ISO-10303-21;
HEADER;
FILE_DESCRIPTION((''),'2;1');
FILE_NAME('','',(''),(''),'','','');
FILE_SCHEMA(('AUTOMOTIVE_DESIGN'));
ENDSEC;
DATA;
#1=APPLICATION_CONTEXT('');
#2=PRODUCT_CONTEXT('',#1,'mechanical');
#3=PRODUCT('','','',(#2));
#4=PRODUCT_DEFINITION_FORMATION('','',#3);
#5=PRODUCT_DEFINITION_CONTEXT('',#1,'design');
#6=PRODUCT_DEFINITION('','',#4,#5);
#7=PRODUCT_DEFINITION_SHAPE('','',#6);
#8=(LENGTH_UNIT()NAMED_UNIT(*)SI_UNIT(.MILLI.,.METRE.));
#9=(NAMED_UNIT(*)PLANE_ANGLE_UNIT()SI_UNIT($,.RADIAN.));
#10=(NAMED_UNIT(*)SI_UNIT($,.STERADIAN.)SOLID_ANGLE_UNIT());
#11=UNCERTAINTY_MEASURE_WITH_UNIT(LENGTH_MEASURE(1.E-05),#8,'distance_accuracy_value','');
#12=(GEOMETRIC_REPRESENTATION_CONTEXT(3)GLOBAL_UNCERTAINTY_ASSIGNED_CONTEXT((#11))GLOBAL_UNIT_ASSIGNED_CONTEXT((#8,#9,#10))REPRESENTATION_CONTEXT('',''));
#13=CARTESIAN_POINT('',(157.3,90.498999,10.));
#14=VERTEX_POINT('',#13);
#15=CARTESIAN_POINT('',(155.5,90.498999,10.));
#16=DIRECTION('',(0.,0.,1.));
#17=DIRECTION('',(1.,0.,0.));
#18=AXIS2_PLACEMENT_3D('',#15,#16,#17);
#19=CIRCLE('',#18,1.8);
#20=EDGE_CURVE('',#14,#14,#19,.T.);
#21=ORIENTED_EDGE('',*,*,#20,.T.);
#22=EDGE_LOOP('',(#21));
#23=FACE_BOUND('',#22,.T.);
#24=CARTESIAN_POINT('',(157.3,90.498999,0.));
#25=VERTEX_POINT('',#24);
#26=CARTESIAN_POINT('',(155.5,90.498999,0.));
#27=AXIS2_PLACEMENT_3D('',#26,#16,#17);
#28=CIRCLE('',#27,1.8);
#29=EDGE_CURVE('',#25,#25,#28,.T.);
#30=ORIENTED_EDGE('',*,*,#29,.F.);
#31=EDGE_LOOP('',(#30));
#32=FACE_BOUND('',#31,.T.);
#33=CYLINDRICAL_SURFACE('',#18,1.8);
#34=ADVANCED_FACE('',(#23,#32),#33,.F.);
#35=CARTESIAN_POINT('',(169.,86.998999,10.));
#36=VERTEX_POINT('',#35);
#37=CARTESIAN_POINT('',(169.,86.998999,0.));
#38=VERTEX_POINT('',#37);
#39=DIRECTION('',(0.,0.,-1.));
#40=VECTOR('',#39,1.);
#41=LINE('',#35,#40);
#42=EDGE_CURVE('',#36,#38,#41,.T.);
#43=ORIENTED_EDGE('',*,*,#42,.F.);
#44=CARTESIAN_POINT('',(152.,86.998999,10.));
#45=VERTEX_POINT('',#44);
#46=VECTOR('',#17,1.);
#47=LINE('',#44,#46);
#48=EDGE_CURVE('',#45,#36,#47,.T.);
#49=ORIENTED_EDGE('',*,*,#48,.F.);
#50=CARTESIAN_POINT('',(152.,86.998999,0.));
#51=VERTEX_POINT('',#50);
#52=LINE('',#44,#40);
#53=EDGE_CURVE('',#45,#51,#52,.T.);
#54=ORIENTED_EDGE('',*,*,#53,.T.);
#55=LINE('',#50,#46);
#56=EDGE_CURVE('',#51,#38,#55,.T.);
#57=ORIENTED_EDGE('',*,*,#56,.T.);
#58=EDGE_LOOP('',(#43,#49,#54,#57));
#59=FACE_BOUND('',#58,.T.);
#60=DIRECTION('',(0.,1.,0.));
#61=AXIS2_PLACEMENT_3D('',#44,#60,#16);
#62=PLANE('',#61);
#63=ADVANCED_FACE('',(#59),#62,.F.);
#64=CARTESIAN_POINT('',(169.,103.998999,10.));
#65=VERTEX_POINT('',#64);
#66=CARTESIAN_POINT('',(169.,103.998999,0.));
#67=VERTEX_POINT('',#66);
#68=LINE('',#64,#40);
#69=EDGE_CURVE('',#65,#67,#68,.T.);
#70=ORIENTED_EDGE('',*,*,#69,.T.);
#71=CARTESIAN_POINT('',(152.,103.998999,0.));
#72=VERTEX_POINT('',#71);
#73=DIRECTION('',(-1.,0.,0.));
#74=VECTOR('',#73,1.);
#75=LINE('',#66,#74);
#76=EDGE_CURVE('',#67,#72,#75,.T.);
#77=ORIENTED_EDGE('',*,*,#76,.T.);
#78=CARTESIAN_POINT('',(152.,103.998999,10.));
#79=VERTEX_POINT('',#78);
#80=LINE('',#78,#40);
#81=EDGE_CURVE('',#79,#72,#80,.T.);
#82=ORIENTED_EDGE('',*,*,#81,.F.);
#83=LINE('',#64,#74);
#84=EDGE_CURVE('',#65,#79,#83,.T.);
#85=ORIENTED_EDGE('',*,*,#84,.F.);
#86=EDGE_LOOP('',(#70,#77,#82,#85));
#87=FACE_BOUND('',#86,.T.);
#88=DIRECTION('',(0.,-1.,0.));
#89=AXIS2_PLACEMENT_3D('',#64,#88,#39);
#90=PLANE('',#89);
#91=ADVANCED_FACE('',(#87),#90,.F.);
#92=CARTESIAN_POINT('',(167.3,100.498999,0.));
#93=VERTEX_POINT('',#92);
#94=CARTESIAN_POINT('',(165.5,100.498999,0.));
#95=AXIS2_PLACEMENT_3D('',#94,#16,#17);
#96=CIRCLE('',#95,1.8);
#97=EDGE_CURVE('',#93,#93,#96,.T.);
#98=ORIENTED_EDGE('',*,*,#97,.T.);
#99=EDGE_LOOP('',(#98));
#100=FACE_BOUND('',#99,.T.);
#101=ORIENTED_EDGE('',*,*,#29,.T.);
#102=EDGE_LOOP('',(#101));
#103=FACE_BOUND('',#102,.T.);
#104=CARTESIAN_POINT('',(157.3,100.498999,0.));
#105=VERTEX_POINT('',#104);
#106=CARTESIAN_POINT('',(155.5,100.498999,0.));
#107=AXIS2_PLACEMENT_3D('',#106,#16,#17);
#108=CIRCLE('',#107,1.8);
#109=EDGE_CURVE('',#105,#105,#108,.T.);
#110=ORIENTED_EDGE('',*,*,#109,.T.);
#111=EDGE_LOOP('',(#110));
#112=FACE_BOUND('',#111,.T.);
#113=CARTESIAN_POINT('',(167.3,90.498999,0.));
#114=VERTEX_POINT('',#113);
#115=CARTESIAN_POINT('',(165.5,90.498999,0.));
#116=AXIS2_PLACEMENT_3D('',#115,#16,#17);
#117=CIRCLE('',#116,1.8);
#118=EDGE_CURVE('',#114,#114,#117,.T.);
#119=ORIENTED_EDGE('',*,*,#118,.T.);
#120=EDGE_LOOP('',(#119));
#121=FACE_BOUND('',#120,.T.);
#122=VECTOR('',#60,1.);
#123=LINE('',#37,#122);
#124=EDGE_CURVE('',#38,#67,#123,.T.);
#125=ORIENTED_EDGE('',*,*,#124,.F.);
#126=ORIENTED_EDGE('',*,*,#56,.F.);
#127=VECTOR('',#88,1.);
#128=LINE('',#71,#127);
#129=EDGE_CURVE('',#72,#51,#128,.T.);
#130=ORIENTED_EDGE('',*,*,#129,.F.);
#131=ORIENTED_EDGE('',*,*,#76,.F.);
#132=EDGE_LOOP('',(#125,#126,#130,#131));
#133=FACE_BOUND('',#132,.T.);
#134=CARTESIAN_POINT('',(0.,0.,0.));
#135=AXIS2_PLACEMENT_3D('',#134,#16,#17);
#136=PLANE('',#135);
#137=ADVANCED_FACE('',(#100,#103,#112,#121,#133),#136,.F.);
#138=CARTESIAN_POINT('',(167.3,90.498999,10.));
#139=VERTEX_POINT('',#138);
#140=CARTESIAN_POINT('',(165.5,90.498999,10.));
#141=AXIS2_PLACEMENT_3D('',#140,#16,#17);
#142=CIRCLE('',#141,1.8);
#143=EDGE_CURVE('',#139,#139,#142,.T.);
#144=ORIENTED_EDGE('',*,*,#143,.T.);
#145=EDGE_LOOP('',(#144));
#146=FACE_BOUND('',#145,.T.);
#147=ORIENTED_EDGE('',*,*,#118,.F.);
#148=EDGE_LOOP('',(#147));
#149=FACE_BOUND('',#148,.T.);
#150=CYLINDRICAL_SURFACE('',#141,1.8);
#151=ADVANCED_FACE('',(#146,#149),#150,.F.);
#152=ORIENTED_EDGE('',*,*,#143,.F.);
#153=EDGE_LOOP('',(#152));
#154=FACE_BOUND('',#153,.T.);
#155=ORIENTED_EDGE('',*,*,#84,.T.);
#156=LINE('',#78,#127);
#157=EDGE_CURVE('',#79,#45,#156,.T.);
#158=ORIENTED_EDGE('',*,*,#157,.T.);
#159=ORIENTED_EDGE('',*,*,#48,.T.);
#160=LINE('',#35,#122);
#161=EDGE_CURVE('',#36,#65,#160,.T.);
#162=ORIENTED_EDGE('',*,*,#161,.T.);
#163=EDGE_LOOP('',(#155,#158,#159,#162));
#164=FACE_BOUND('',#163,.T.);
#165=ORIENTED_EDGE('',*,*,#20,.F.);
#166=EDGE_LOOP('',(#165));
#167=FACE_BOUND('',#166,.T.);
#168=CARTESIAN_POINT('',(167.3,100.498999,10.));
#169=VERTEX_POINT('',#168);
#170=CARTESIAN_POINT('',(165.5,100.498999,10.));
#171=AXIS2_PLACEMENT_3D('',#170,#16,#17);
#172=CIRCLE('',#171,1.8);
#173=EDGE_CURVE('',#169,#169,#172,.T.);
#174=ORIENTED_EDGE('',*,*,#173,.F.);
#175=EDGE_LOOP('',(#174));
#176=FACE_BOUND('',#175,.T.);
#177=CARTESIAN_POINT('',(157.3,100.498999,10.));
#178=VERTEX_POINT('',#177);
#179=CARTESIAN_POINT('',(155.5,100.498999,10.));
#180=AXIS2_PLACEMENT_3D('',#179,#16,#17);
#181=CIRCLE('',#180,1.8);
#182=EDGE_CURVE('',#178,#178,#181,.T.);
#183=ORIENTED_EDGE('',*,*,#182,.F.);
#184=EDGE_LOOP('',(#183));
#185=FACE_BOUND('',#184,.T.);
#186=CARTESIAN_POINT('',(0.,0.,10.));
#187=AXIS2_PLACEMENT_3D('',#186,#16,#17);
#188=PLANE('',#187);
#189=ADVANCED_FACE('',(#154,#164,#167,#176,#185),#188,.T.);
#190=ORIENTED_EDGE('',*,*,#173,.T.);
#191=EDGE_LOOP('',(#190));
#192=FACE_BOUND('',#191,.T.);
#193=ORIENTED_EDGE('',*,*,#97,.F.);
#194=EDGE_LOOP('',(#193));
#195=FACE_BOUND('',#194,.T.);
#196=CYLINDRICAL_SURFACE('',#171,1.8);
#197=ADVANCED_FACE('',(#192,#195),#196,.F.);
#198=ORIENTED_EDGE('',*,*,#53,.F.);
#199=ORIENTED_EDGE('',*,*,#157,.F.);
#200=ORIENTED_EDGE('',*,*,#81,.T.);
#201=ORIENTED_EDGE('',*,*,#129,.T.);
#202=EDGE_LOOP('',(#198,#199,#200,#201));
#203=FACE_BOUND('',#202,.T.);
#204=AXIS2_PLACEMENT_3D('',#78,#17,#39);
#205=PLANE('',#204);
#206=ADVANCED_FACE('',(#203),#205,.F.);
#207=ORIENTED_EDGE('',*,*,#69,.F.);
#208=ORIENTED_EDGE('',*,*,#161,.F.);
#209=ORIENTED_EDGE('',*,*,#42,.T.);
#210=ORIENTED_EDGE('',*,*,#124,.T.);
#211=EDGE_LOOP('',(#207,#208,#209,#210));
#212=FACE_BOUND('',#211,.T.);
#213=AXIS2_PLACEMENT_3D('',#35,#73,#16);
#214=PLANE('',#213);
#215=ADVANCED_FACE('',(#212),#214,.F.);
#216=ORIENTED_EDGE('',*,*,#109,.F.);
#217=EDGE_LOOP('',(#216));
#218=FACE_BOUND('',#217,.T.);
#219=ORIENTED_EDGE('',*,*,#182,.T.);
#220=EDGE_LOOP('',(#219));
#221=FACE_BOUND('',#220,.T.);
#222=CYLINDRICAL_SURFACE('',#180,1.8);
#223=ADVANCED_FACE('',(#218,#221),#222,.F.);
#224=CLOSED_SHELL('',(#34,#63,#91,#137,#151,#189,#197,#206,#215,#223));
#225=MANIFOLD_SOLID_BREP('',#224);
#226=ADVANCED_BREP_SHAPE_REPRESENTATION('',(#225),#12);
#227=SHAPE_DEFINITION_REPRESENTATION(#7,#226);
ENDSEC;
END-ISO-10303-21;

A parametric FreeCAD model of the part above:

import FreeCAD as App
import Part
import Sketcher

V = App.Vector
Q = App.Units.Quantity


def add_polygon(sketch, points):
    """Adds a closed chain of lines whose ends are joined by coincident constraints."""
    first, n = sketch.GeometryCount, len(points)
    for a, b in zip(points, points[1:] + points[:1]):
        sketch.addGeometry(Part.LineSegment(App.Vector(*a, 0), App.Vector(*b, 0)), False)
    for i in range(n):
        sketch.addConstraint(Sketcher.Constraint("Coincident", first + i, 2, first + (i + 1) % n, 1))

doc = App.newDocument("Part")
body = doc.addObject("PartDesign::Body", "Body")

sketch1 = doc.addObject("Sketcher::SketchObject", "Sketch")
body.addObject(sketch1)
sketch1.AttachmentSupport = (doc.XY_Plane, [""])
sketch1.MapMode = "FlatFace"
add_polygon(sketch1, [(152, 103.998999), (152, 86.998999), (169, 86.998999), (169, 103.998999)])
sketch1.addConstraint([
    Sketcher.Constraint("Vertical", 0),
    Sketcher.Constraint("Horizontal", 1),
    Sketcher.Constraint("Vertical", 2),
    Sketcher.Constraint("Horizontal", 3),
    Sketcher.Constraint("Equal", 3, 0),
    Sketcher.Constraint("DistanceX", 1, 1, 1, 2, Q("17 mm")),
    Sketcher.Constraint("DistanceX", -1, 1, 0, 2, Q("152 mm")),
    Sketcher.Constraint("DistanceY", -1, 1, 0, 2, Q("86.998999 mm")),
])
pad1 = doc.addObject("PartDesign::Pad", "Pad")
body.addObject(pad1)
pad1.Profile = sketch1
pad1.Length = 10

sketch2 = doc.addObject("Sketcher::SketchObject", "Sketch001")
body.addObject(sketch2)
sketch2.AttachmentSupport = (doc.XY_Plane, [""])
sketch2.MapMode = "FlatFace"
sketch2.AttachmentOffset = App.Placement(V(0, 0, 10), App.Rotation())
sketch2.addGeometry([
    Part.Circle(V(155.5, 100.498999, 0), V(0, 0, 1), 1.8),
    Part.Circle(V(155.5, 90.498999, 0), V(0, 0, 1), 1.8),
    Part.Circle(V(165.5, 90.498999, 0), V(0, 0, 1), 1.8),
    Part.Circle(V(165.5, 100.498999, 0), V(0, 0, 1), 1.8),
], False)
sketch2.addConstraint([
    Sketcher.Constraint("Equal", 0, 1),
    Sketcher.Constraint("Equal", 1, 2),
    Sketcher.Constraint("Equal", 2, 3),
    Sketcher.Constraint("Horizontal", 1, 3, 2, 3),
    Sketcher.Constraint("Horizontal", 0, 3, 3, 3),
    Sketcher.Constraint("Vertical", 0, 3, 1, 3),
    Sketcher.Constraint("Vertical", 2, 3, 3, 3),
    Sketcher.Constraint("Diameter", 0, Q("3.6 mm")),
    Sketcher.Constraint("DistanceY", 1, 3, 0, 3, Q("10 mm")),
    Sketcher.Constraint("DistanceX", 1, 3, 2, 3, Q("10 mm")),
    Sketcher.Constraint("DistanceX", -1, 1, 0, 3, Q("155.5 mm")),
    Sketcher.Constraint("DistanceY", -1, 1, 0, 3, Q("100.498999 mm")),
])
doc.recompute()
hole = doc.addObject("PartDesign::Hole", "Hole")
body.addObject(hole)
hole.Profile = sketch2
hole.ThreadType = "None"
hole.Diameter = 3.6
hole.DepthType = "ThroughAll"

doc.recompute()
